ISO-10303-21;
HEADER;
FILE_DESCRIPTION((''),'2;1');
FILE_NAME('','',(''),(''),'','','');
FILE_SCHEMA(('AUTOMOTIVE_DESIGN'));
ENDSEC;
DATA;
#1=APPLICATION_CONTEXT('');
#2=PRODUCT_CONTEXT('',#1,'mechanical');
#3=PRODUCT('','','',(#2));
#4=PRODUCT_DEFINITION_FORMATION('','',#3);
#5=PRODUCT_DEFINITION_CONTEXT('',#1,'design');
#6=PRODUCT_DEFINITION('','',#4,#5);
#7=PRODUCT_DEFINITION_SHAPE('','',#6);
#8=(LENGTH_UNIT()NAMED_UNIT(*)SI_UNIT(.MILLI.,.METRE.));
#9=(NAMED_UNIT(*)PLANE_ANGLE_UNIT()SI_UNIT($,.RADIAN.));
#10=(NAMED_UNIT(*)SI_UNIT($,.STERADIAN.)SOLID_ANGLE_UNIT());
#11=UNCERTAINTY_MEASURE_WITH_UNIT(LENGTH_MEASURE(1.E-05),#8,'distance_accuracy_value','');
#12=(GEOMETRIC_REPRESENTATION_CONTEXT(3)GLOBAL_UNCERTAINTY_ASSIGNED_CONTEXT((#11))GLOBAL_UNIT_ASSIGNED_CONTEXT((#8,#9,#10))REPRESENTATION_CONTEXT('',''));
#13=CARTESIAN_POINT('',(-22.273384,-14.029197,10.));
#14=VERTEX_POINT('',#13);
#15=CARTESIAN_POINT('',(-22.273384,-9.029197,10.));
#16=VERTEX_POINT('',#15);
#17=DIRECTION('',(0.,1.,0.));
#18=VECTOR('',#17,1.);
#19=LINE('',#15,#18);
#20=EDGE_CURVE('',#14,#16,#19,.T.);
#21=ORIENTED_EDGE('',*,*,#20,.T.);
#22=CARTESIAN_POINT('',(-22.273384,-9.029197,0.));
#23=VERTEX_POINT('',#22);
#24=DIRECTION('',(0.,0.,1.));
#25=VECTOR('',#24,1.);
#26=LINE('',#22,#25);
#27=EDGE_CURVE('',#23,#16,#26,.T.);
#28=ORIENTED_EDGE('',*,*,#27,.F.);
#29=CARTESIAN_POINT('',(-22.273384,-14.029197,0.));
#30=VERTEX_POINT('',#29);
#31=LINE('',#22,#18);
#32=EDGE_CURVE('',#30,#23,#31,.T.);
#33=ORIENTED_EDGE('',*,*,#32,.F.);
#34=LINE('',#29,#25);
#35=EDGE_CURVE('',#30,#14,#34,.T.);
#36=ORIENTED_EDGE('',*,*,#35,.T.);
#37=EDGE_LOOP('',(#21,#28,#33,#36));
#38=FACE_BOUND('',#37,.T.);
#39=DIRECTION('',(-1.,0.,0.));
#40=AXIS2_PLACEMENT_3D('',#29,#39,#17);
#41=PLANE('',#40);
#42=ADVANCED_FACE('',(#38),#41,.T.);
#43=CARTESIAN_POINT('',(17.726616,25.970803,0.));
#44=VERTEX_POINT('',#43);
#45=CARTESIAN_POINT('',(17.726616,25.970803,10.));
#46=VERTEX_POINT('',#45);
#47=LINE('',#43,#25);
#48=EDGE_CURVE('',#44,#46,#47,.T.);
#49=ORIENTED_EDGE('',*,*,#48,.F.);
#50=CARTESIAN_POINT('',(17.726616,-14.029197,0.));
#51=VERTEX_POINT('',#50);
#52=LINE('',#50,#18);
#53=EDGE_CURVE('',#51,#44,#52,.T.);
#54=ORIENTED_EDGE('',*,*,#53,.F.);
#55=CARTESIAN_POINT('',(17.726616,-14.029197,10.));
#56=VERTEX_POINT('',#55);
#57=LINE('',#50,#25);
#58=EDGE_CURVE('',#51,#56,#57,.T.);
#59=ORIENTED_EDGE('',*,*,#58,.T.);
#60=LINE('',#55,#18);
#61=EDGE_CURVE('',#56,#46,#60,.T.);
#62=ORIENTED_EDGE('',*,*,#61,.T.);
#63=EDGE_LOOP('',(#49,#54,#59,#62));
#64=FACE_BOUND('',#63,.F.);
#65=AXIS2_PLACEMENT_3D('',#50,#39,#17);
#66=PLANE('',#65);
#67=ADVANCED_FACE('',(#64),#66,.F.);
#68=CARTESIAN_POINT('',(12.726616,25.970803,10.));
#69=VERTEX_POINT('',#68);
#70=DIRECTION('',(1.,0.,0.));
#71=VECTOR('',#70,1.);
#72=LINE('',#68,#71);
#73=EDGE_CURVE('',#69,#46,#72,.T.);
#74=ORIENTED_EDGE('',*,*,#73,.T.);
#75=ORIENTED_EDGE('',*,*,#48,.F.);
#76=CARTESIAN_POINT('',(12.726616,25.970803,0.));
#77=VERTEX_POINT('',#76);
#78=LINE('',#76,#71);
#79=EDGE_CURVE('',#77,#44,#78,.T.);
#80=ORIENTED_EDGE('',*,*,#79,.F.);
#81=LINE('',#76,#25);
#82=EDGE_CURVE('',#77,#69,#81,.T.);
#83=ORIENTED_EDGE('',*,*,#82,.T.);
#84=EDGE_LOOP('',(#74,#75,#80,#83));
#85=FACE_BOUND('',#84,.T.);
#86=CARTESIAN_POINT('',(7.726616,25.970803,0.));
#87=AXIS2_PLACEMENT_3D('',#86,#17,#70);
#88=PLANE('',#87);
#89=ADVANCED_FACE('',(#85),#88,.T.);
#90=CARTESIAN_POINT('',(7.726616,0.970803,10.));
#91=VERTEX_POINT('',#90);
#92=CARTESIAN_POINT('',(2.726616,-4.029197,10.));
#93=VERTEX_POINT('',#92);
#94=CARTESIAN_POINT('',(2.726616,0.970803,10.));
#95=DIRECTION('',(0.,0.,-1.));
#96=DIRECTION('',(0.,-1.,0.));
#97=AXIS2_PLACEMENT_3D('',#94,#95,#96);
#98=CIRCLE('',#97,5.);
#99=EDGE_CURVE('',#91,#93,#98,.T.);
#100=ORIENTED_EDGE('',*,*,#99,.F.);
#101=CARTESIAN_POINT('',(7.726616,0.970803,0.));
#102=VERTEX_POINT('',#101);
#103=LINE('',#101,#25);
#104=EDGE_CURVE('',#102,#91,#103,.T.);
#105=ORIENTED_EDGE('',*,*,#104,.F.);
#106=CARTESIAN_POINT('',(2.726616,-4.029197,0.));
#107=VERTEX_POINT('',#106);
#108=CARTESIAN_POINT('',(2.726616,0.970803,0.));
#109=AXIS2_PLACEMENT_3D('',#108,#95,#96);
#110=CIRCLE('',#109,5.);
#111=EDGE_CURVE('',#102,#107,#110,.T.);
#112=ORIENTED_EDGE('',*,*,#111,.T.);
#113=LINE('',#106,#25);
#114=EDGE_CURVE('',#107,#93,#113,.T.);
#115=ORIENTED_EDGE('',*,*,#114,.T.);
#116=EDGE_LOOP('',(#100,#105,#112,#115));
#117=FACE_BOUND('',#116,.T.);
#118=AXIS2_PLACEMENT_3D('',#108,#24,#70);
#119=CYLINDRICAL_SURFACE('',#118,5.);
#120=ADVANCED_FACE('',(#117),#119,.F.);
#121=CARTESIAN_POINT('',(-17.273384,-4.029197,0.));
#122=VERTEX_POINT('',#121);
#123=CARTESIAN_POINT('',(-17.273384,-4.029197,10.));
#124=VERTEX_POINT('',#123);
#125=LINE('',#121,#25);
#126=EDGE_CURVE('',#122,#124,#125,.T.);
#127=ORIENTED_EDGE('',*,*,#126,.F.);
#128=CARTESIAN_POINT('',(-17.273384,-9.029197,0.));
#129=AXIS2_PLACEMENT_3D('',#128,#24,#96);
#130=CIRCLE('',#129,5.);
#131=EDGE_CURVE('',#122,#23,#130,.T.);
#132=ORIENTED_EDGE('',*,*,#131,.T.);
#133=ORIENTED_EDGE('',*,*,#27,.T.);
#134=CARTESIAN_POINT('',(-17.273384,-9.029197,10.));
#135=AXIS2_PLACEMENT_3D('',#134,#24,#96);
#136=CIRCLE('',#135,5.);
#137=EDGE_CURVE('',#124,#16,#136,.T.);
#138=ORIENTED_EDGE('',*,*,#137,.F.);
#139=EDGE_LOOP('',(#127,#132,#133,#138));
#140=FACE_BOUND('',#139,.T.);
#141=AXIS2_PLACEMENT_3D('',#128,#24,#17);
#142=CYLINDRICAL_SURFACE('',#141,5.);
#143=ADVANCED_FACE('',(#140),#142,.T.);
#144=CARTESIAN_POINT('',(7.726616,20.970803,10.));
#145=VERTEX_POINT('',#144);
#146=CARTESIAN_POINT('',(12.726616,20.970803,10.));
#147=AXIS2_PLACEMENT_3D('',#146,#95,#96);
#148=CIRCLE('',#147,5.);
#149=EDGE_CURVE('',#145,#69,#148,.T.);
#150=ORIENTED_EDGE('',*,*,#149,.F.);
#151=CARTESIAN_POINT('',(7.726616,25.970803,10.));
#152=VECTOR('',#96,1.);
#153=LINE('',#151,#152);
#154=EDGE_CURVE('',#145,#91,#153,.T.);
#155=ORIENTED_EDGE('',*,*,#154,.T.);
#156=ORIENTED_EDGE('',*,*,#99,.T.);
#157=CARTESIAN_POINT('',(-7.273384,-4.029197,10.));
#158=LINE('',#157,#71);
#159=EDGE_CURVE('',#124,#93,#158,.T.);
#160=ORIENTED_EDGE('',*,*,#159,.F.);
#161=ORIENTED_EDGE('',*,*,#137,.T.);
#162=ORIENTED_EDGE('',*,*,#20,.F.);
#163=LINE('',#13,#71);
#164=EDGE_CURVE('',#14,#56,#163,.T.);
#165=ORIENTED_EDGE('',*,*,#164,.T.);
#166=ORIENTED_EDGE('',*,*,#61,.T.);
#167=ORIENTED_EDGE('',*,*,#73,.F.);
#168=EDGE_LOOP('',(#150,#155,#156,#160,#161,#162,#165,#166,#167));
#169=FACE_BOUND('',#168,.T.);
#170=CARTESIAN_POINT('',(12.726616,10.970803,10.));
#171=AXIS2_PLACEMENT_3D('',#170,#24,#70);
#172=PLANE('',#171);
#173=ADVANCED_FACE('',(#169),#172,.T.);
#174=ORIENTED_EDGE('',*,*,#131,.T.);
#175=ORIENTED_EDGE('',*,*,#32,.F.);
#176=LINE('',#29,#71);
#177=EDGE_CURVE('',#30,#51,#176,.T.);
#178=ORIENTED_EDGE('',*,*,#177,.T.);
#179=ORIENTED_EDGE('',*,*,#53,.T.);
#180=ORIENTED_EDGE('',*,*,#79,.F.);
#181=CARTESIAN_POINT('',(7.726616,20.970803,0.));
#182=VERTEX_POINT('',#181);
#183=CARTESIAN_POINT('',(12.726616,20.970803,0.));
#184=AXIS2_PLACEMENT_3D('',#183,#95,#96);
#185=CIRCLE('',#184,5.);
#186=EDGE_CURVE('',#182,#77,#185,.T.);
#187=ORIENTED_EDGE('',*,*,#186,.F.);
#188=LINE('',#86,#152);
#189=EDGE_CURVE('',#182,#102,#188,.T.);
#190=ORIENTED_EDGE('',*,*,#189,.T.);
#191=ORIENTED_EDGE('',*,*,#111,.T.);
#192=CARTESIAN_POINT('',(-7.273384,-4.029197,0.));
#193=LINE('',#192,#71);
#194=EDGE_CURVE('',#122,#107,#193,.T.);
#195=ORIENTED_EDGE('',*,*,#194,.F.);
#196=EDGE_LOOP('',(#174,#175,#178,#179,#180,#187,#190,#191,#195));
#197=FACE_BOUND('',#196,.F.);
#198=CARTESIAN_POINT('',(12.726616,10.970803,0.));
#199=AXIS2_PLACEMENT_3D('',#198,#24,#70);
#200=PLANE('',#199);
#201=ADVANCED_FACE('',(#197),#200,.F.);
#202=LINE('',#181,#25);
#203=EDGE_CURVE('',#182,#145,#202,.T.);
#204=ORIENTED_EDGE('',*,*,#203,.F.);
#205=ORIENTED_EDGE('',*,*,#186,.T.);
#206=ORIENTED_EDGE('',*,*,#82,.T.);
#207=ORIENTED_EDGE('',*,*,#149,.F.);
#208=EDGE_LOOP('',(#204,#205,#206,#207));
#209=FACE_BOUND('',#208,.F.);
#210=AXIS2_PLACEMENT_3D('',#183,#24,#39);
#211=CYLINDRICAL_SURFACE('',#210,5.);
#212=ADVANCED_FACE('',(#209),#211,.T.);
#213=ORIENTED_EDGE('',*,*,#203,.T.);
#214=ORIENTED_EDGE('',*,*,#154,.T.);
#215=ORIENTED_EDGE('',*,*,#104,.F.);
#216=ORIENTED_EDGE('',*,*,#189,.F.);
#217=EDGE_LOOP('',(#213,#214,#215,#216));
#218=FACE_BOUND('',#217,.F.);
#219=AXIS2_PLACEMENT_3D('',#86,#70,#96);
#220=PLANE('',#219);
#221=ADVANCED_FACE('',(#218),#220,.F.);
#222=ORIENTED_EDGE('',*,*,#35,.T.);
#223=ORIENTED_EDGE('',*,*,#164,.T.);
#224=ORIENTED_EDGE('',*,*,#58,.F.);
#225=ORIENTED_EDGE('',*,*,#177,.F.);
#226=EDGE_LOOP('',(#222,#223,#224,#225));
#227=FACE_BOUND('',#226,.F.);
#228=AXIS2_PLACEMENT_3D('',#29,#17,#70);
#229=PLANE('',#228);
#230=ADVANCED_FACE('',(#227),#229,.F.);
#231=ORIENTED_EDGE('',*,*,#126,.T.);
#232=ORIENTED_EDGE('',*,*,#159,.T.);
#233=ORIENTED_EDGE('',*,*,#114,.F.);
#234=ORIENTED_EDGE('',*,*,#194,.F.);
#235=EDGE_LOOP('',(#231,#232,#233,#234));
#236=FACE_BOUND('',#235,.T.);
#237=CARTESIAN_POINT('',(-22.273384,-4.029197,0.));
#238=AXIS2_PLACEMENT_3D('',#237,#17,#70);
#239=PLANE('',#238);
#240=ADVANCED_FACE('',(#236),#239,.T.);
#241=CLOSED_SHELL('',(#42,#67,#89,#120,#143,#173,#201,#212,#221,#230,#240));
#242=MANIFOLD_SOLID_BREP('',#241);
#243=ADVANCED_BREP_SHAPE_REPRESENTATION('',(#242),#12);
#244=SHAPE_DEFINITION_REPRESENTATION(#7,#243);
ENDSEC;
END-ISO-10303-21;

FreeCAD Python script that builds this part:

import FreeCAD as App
import Part
import Sketcher
from FreeCAD import Vector


def edges_at(feature, points):
    """Names of the edges that pass closest to the given points."""
    edges = feature.Shape.Edges
    near = lambda p: min(range(len(edges)), key=lambda i: edges[i].distToShape(Part.Vertex(*p))[0])
    return sorted({f"Edge{near(p) + 1}" for p in points})


def add_polygon(sketch, points):
    """Adds a closed chain of lines whose ends are joined by coincident constraints."""
    first, n = sketch.GeometryCount, len(points)
    for a, b in zip(points, points[1:] + points[:1]):
        sketch.addGeometry(Part.LineSegment(App.Vector(*a, 0), App.Vector(*b, 0)), False)
    for i in range(n):
        sketch.addConstraint(Sketcher.Constraint("Coincident", first + i, 2, first + (i + 1) % n, 1))

doc = App.newDocument("Part")
body = doc.addObject("PartDesign::Body", "Body")

sketch1 = doc.addObject("Sketcher::SketchObject", "Sketch")
body.addObject(sketch1)
sketch1.AttachmentSupport = (doc.XY_Plane, [""])
sketch1.MapMode = "FlatFace"
add_polygon(sketch1, [(8, 26), (8, -4), (-22, -4), (-22, -14), (18, -14), (18, 26)])
sketch1.addConstraint([
    Sketcher.Constraint("Vertical", 0),
    Sketcher.Constraint("Horizontal", 1),
    Sketcher.Constraint("Vertical", 2),
    Sketcher.Constraint("Horizontal", 3),
    Sketcher.Constraint("Vertical", 4),
    Sketcher.Constraint("Horizontal", 5),
    Sketcher.Constraint("Equal", 1, 0),
    Sketcher.Constraint("Equal", 5, 2),
    Sketcher.Constraint("DistanceX", 1, 2, 1, 1, 30.0),
    Sketcher.Constraint("DistanceX", 3, 1, 3, 2, 40.0),
    Sketcher.Constraint("DistanceX", -1, 1, 0, 2, 7.726616),
    Sketcher.Constraint("DistanceY", 0, 2, -1, 1, 4.029197),
])
pad1 = doc.addObject("PartDesign::Pad", "Pad")
body.addObject(pad1)
pad1.Profile = sketch1
pad1.Length = 10
doc.recompute()

fillet = doc.addObject("PartDesign::Fillet", "Fillet")
body.addObject(fillet)
fillet.Base = (pad1, edges_at(pad1, [(7.727, -4.029, 5), (7.727, 25.971, 5), (-22.273, -4.029, 5)]))
fillet.Radius = 5

doc.recompute()
